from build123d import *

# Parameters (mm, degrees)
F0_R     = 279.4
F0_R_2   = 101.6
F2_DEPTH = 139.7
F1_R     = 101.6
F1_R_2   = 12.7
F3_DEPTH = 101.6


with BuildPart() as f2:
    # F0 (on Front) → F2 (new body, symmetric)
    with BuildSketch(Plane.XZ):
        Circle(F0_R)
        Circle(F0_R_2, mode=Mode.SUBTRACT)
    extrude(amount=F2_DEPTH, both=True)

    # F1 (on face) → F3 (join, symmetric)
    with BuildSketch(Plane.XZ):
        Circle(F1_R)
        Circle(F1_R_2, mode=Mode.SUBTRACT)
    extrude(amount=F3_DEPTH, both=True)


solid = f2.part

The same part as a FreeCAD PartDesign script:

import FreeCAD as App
import Part
import Sketcher
Q = App.Units.Quantity

doc = App.newDocument("Part")
body = doc.addObject("PartDesign::Body", "Body")

# Sketch on XZ plane
sketch1 = body.newObject("Sketcher::SketchObject", "Sketch")
sketch1.AttachmentSupport = (doc.getObject("XZ_Plane"), [""])
sketch1.MapMode = "FlatFace"
sketch1.addGeometry([
    Part.Circle(App.Vector(0, 0, 0), App.Vector(0, 0, 1), 279.4),
    Part.Circle(App.Vector(0, 0, 0), App.Vector(0, 0, 1), 101.6),
], False)
sketch1.addConstraint([
    Sketcher.Constraint("Coincident", 0, 3, -1, 1),
    Sketcher.Constraint("Coincident", 1, 3, -1, 1),
    Sketcher.Constraint("Diameter", 0, Q("22 in")),
    Sketcher.Constraint("Diameter", 1, Q("8 in")),
])
pad1 = body.newObject("PartDesign::Pad", "Pad")
pad1.Profile = sketch1
pad1.Length = Q("11 in")
pad1.Midplane = True

# Sketch on XZ plane
sketch2 = body.newObject("Sketcher::SketchObject", "Sketch001")
sketch2.AttachmentSupport = (doc.getObject("XZ_Plane"), [""])
sketch2.MapMode = "FlatFace"
sketch2.addGeometry([
    Part.Circle(App.Vector(0, 0, 0), App.Vector(0, 0, 1), 101.6),
    Part.Circle(App.Vector(0, 0, 0), App.Vector(0, 0, 1), 12.7),
], False)
sketch2.addConstraint([
    Sketcher.Constraint("Coincident", 0, 3, -1, 1),
    Sketcher.Constraint("Coincident", 1, 3, -1, 1),
    Sketcher.Constraint("Diameter", 0, Q("8 in")),
    Sketcher.Constraint("Diameter", 1, Q("1 in")),
])
pad2 = body.newObject("PartDesign::Pad", "Pad001")
pad2.Profile = sketch2
pad2.Length = Q("8 in")
pad2.Midplane = True

doc.recompute()
